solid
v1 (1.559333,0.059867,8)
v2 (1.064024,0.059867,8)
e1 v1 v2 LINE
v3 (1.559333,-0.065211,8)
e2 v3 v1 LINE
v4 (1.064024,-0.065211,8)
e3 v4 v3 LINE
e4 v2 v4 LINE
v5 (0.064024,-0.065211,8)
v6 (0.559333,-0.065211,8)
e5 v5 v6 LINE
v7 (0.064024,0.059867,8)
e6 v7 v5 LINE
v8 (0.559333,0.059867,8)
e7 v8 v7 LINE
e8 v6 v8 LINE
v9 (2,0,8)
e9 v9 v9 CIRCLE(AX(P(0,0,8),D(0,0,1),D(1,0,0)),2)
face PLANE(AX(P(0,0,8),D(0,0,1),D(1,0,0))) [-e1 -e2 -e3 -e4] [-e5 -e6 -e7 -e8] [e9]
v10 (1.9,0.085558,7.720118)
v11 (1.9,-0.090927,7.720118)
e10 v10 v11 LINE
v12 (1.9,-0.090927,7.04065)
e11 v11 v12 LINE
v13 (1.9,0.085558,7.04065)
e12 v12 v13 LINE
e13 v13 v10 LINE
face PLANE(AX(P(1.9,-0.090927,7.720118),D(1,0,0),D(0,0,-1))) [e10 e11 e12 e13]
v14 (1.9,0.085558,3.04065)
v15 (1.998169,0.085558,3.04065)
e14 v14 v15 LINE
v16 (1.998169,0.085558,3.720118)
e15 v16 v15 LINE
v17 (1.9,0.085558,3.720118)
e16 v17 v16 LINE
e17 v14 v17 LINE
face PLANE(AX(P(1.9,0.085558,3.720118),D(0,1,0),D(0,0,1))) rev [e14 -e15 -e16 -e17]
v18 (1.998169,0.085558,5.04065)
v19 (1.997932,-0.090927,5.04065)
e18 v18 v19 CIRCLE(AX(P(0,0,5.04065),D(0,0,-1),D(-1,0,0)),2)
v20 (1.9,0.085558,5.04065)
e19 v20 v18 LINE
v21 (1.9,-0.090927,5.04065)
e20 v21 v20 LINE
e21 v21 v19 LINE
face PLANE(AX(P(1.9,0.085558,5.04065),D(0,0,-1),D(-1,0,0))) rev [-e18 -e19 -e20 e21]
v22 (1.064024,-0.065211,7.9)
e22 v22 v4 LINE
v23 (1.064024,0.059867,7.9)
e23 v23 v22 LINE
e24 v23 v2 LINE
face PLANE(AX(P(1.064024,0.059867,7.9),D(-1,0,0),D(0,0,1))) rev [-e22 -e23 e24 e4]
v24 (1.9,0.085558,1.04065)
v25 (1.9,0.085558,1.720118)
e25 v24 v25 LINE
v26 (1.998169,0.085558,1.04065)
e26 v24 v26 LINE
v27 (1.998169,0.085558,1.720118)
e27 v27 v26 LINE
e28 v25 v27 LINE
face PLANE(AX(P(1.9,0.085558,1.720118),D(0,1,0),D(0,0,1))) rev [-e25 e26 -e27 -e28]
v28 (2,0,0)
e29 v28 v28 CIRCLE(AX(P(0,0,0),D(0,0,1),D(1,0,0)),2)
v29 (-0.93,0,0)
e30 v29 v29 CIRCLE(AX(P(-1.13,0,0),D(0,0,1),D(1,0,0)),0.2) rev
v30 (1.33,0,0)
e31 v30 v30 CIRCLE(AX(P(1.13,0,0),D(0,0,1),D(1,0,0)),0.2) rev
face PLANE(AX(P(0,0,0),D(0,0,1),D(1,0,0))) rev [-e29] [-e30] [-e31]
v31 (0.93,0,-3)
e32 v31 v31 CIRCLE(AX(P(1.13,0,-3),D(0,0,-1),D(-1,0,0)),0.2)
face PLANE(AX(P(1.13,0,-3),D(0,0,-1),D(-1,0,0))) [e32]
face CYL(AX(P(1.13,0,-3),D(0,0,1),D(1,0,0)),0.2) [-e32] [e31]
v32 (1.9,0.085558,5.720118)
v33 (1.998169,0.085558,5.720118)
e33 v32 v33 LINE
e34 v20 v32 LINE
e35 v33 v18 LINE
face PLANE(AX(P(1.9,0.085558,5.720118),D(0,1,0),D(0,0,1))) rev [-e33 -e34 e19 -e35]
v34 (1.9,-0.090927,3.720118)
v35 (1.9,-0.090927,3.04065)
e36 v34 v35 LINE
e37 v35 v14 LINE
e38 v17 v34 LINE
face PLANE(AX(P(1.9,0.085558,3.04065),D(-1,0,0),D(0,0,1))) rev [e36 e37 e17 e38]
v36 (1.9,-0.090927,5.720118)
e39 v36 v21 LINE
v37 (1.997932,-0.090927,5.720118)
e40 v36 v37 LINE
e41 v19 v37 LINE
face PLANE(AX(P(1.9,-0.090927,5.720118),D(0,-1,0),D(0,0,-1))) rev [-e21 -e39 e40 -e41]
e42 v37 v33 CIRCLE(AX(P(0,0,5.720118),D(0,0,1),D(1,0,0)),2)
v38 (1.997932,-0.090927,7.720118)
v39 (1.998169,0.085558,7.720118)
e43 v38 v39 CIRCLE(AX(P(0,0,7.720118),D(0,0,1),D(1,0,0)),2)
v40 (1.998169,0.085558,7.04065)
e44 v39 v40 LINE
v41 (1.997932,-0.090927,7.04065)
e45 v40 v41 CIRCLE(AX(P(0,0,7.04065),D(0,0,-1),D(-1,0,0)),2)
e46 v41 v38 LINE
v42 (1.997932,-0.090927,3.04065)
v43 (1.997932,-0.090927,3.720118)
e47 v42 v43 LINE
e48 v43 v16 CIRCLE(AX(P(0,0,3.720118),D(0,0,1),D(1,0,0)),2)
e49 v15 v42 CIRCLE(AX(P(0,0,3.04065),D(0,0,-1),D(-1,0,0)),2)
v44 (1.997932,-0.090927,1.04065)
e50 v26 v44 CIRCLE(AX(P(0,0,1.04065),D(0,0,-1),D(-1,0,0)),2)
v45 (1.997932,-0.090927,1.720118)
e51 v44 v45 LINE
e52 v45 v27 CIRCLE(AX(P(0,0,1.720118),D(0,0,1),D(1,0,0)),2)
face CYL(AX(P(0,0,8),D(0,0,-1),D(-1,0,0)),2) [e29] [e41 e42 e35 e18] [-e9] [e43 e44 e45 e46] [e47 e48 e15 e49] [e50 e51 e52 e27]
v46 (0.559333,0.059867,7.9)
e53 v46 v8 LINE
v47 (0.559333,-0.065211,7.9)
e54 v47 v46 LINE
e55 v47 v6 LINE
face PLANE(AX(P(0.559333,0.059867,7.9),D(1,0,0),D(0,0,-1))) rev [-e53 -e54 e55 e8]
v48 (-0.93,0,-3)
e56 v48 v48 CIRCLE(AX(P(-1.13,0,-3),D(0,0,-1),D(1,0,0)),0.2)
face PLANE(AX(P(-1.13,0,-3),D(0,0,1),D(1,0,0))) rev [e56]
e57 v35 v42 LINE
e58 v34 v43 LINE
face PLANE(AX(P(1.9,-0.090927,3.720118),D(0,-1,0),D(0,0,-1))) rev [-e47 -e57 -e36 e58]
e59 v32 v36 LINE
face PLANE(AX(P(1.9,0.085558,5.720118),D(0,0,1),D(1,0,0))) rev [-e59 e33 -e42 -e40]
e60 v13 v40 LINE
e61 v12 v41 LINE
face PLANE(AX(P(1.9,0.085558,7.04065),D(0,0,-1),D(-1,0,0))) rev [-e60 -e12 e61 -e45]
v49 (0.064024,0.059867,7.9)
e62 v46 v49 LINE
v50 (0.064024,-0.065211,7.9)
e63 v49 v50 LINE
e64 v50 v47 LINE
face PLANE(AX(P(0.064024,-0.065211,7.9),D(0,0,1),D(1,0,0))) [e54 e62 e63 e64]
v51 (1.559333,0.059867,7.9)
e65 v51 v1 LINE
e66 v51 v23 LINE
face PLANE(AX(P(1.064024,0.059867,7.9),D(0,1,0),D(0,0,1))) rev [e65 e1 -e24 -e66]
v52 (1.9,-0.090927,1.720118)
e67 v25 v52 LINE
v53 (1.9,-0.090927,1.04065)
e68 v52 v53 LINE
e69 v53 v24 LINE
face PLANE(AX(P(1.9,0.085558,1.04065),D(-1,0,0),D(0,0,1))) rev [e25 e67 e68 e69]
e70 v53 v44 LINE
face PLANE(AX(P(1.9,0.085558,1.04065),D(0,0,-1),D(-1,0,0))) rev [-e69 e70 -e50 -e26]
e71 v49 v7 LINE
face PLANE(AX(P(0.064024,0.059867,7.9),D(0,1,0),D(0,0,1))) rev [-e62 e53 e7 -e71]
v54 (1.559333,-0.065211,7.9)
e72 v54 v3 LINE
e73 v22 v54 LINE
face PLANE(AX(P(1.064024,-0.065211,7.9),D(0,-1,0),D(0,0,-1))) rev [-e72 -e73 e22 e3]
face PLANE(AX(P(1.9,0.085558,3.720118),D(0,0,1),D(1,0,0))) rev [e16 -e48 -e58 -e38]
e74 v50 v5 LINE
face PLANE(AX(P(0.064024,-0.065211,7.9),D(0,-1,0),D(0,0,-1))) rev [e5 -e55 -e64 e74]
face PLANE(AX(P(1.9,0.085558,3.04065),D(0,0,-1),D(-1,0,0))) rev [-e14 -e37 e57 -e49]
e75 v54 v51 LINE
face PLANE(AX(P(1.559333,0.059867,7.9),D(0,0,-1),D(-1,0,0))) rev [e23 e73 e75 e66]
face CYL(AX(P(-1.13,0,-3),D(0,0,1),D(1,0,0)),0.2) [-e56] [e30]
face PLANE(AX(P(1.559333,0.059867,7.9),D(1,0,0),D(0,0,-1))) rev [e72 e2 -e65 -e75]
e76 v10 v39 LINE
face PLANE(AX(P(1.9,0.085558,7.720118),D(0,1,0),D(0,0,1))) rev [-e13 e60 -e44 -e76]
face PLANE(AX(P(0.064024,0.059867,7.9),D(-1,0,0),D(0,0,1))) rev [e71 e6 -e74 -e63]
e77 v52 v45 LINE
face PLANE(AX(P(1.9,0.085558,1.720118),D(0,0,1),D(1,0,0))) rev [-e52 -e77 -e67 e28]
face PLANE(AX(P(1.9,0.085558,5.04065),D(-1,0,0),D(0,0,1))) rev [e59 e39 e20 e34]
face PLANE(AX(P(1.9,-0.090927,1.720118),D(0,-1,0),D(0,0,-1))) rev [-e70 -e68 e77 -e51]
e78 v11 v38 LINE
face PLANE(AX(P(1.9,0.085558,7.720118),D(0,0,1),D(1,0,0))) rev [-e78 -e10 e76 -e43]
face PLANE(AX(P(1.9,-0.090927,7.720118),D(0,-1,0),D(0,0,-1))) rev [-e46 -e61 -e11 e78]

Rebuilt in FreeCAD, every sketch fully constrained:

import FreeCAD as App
import Part
import Sketcher

V = App.Vector
Q = App.Units.Quantity


def add_polygon(sketch, points):
    """Adds a closed chain of lines whose ends are joined by coincident constraints."""
    first, n = sketch.GeometryCount, len(points)
    for a, b in zip(points, points[1:] + points[:1]):
        sketch.addGeometry(Part.LineSegment(App.Vector(*a, 0), App.Vector(*b, 0)), False)
    for i in range(n):
        sketch.addConstraint(Sketcher.Constraint("Coincident", first + i, 2, first + (i + 1) % n, 1))

doc = App.newDocument("Part")
body = doc.addObject("PartDesign::Body", "Body")

# Sketch on XY plane
sketch1 = body.newObject("Sketcher::SketchObject", "Sketch")
sketch1.AttachmentSupport = (doc.getObject("XY_Plane"), [""])
sketch1.MapMode = "FlatFace"
sketch1.addGeometry(Part.Circle(V(0, 0, 0), V(0, 0, 1), 2), False)
sketch1.addConstraint([
    Sketcher.Constraint("Coincident", 0, 3, -1, 1),
    Sketcher.Constraint("Diameter", 0, Q("4 mm")),
])
pad1 = body.newObject("PartDesign::Pad", "Pad")
pad1.Profile = sketch1
pad1.Length = 8

# Sketch on XY plane
sketch2 = body.newObject("Sketcher::SketchObject", "Sketch001")
sketch2.AttachmentSupport = (doc.getObject("XY_Plane"), [""])
sketch2.MapMode = "FlatFace"
sketch2.addGeometry([
    Part.Circle(V(1.13, 0, 0), V(0, 0, 1), 0.2),
    Part.Circle(V(-1.13, 0, 0), V(0, 0, 1), 0.2),
], False)
sketch2.addConstraint([
    Sketcher.Constraint("Equal", 0, 1),
    Sketcher.Constraint("Symmetric", 0, 3, 1, 3, -1, 1),
    Sketcher.Constraint("PointOnObject", 0, 3, -1),
    Sketcher.Constraint("Diameter", 0, Q("0.4 mm")),
    Sketcher.Constraint("DistanceX", -1, 1, 0, 3, Q("1.13 mm")),
])
pad2 = body.newObject("PartDesign::Pad", "Pad001")
pad2.Profile = sketch2
pad2.Length = 3
pad2.Reversed = True

# Sketch on YZ plane
sketch3 = body.newObject("Sketcher::SketchObject", "Sketch002")
sketch3.AttachmentSupport = (doc.getObject("YZ_Plane"), [""])
sketch3.MapMode = "FlatFace"
sketch3.AttachmentOffset = App.Placement(V(0, 0, 2), App.Rotation())
add_polygon(sketch3, [(0.09, 5.72), (-0.09, 5.72), (-0.09, 5.04), (0.09, 5.04)])  # lines 0-3
add_polygon(sketch3, [(0.09, 7.72), (-0.09, 7.72), (-0.09, 7.04), (0.09, 7.04)])  # lines 4-7
add_polygon(sketch3, [(0.09, 3.72), (-0.09, 3.72), (-0.09, 3.04), (0.09, 3.04)])  # lines 8-11
add_polygon(sketch3, [(0.09, 1.72), (-0.09, 1.72), (-0.09, 1.04), (0.09, 1.04)])  # lines 12-15
sketch3.addConstraint([
    Sketcher.Constraint("Horizontal", 0),
    Sketcher.Constraint("Vertical", 1),
    Sketcher.Constraint("Horizontal", 2),
    Sketcher.Constraint("Vertical", 3),
    Sketcher.Constraint("Horizontal", 4),
    Sketcher.Constraint("Vertical", 5),
    Sketcher.Constraint("Horizontal", 6),
    Sketcher.Constraint("Vertical", 7),
    Sketcher.Constraint("Horizontal", 8),
    Sketcher.Constraint("Vertical", 9),
    Sketcher.Constraint("Horizontal", 10),
    Sketcher.Constraint("Vertical", 11),
    Sketcher.Constraint("Horizontal", 12),
    Sketcher.Constraint("Vertical", 13),
    Sketcher.Constraint("Horizontal", 14),
    Sketcher.Constraint("Vertical", 15),
    Sketcher.Constraint("Vertical", 1, 2, 4, 2),
    Sketcher.Constraint("Vertical", 3, 2, 6, 2),
    Sketcher.Constraint("Vertical", 5, 2, 8, 2),
    Sketcher.Constraint("Vertical", 7, 2, 10, 2),
    Sketcher.Constraint("Vertical", 9, 2, 12, 2),
    Sketcher.Constraint("Vertical", 11, 2, 14, 2),
    Sketcher.Constraint("Equal", 3, 5),
    Sketcher.Constraint("Equal", 7, 9),
    Sketcher.Constraint("Equal", 11, 13),
    Sketcher.Constraint("DistanceY", 0, 2, 4, 2, Q("2 mm")),
    Sketcher.Constraint("DistanceY", 8, 2, 0, 2, Q("2 mm")),
    Sketcher.Constraint("DistanceY", 12, 2, 8, 2, Q("2 mm")),
    Sketcher.Constraint("DistanceX", 0, 2, 0, 1, Q("0.176485 mm")),
    Sketcher.Constraint("DistanceY", 1, 2, 1, 1, Q("0.679468 mm")),
    Sketcher.Constraint("DistanceY", -1, 1, 1, 2, Q("5.04065 mm")),
    Sketcher.Constraint("DistanceX", 0, 2, -1, 1, Q("0.090927 mm")),
])
pocket1 = body.newObject("PartDesign::Pocket", "Pocket")
pocket1.Profile = sketch3
pocket1.Length = 0.1

# Sketch on XY plane
sketch4 = body.newObject("Sketcher::SketchObject", "Sketch003")
sketch4.AttachmentSupport = (doc.getObject("XY_Plane"), [""])
sketch4.MapMode = "FlatFace"
sketch4.AttachmentOffset = App.Placement(V(0, 0, 8), App.Rotation())
add_polygon(sketch4, [(1.06, 0.06), (1.06, -0.07), (1.56, -0.07), (1.56, 0.06)])  # lines 0-3
add_polygon(sketch4, [(0.06, 0.06), (0.06, -0.07), (0.56, -0.07), (0.56, 0.06)])  # lines 4-7
sketch4.addConstraint([
    Sketcher.Constraint("Vertical", 0),
    Sketcher.Constraint("Horizontal", 1),
    Sketcher.Constraint("Vertical", 2),
    Sketcher.Constraint("Horizontal", 3),
    Sketcher.Constraint("Vertical", 4),
    Sketcher.Constraint("Horizontal", 5),
    Sketcher.Constraint("Vertical", 6),
    Sketcher.Constraint("Horizontal", 7),
    Sketcher.Constraint("Horizontal", 1, 2, 4, 2),
    Sketcher.Constraint("Horizontal", 3, 2, 6, 2),
    Sketcher.Constraint("Equal", 3, 5),
    Sketcher.Constraint("DistanceX", 4, 2, 0, 2, Q("1 mm")),
    Sketcher.Constraint("DistanceX", 1, 1, 1, 2, Q("0.495309 mm")),
    Sketcher.Constraint("DistanceY", 0, 2, 0, 1, Q("0.125078 mm")),
    Sketcher.Constraint("DistanceY", 0, 2, -1, 1, Q("0.065211 mm")),
    Sketcher.Constraint("DistanceX", -1, 1, 0, 2, Q("1.064024 mm")),
])
pocket2 = body.newObject("PartDesign::Pocket", "Pocket001")
pocket2.Profile = sketch4
pocket2.Length = 0.1

doc.recompute()
